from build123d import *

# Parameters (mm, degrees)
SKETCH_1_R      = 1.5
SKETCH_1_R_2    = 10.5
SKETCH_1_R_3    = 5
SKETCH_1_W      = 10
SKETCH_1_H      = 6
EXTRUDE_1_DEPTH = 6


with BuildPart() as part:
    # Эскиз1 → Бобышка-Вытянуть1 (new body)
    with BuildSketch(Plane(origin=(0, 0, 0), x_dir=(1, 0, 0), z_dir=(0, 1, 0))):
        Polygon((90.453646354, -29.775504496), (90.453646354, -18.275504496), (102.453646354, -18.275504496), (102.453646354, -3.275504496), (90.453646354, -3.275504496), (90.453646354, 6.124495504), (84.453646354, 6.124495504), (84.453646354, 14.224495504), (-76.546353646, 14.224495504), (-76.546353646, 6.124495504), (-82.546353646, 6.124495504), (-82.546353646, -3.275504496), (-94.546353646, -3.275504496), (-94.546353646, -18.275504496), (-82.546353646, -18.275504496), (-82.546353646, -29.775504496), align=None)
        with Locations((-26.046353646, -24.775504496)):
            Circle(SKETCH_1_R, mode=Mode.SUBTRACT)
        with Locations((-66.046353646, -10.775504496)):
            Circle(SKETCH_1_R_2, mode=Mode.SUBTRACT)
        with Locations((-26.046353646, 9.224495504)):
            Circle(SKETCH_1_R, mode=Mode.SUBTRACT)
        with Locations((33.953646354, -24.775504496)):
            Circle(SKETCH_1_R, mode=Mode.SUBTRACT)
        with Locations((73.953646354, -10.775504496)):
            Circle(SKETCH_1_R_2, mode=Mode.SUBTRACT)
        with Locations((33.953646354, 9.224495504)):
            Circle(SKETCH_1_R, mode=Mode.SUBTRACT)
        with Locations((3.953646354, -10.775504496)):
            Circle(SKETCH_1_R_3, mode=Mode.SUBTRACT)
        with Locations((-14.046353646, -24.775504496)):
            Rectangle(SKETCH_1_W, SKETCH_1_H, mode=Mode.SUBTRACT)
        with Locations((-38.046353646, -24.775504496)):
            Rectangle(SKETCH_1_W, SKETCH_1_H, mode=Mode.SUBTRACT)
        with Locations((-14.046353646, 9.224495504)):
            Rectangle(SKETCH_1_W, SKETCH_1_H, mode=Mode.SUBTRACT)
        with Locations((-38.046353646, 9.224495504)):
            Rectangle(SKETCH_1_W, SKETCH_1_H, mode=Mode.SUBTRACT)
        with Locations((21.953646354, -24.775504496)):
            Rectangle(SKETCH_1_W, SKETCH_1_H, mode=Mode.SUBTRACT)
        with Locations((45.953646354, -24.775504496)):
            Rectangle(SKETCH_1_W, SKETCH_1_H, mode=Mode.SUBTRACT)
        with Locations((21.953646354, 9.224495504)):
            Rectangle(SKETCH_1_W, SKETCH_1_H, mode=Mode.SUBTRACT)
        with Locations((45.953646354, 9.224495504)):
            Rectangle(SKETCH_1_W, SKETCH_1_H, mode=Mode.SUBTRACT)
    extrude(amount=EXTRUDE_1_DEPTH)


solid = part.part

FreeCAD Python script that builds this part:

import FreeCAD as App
import Part
import Sketcher

doc = App.newDocument("Part")
params = doc.addObject("Spreadsheet::Sheet", "Params")
for row, (alias, value) in enumerate([
    ("sketch1_diameter", "3 mm"),
    ("sketch1_diameter2", "21 mm"),
    ("sketch1_diameter3", "10 mm"),
    ("sketch1_width", "12 mm"),
    ("sketch1_width2", "6 mm"),
    ("pad1_length", "6 mm"),
], start=1):
    params.set(f"A{row}", alias)
    params.set(f"B{row}", "=" + value)
    params.setAlias(f"B{row}", alias)

body = doc.addObject("PartDesign::Body", "Body")

# Sketch on XZ plane
sketch1 = doc.addObject("Sketcher::SketchObject", "Sketch")
body.addObject(sketch1)
sketch1.AttachmentSupport = (doc.XZ_Plane, [""])
sketch1.MapMode = "FlatFace"
sketch1.addGeometry([
    Part.LineSegment(App.Vector(90.5, 29.8, 0), App.Vector(90.5, 18.3, 0)),  # 0
    Part.LineSegment(App.Vector(90.5, 18.3, 0), App.Vector(102.5, 18.3, 0)),  # 1
    Part.LineSegment(App.Vector(102.5, 18.3, 0), App.Vector(102.5, 3.3, 0)),  # 2
    Part.LineSegment(App.Vector(102.5, 3.3, 0), App.Vector(90.5, 3.3, 0)),  # 3
    Part.LineSegment(App.Vector(90.5, 3.3, 0), App.Vector(90.5, -6.1, 0)),  # 4
    Part.LineSegment(App.Vector(90.5, -6.1, 0), App.Vector(84.5, -6.1, 0)),  # 5
    Part.LineSegment(App.Vector(84.5, -6.1, 0), App.Vector(84.5, -14.2, 0)),  # 6
    Part.LineSegment(App.Vector(84.5, -14.2, 0), App.Vector(-76.5, -14.2, 0)),  # 7
    Part.LineSegment(App.Vector(-76.5, -14.2, 0), App.Vector(-76.5, -6.1, 0)),  # 8
    Part.LineSegment(App.Vector(-76.5, -6.1, 0), App.Vector(-82.5, -6.1, 0)),  # 9
    Part.LineSegment(App.Vector(-82.5, -6.1, 0), App.Vector(-82.5, 3.3, 0)),  # 10
    Part.LineSegment(App.Vector(-82.5, 3.3, 0), App.Vector(-94.5, 3.3, 0)),  # 11
    Part.LineSegment(App.Vector(-94.5, 3.3, 0), App.Vector(-94.5, 18.3, 0)),  # 12
    Part.LineSegment(App.Vector(-94.5, 18.3, 0), App.Vector(-82.5, 18.3, 0)),  # 13
    Part.LineSegment(App.Vector(-82.5, 18.3, 0), App.Vector(-82.5, 29.8, 0)),  # 14
    Part.LineSegment(App.Vector(-82.5, 29.8, 0), App.Vector(90.5, 29.8, 0)),  # 15
    Part.LineSegment(App.Vector(-33, 27.8, 0), App.Vector(-43, 27.8, 0)),  # 16
    Part.LineSegment(App.Vector(-43, 27.8, 0), App.Vector(-43, 21.8, 0)),  # 17
    Part.LineSegment(App.Vector(-43, 21.8, 0), App.Vector(-33, 21.8, 0)),  # 18
    Part.LineSegment(App.Vector(-33, 21.8, 0), App.Vector(-33, 27.8, 0)),  # 19
    Part.Circle(App.Vector(-26, 24.8, 0), App.Vector(0, 0, 1), 1.5),  # 20
    Part.LineSegment(App.Vector(-9, 27.8, 0), App.Vector(-19, 27.8, 0)),  # 21
    Part.LineSegment(App.Vector(-19, 27.8, 0), App.Vector(-19, 21.8, 0)),  # 22
    Part.LineSegment(App.Vector(-19, 21.8, 0), App.Vector(-9, 21.8, 0)),  # 23
    Part.LineSegment(App.Vector(-9, 21.8, 0), App.Vector(-9, 27.8, 0)),  # 24
    Part.Circle(App.Vector(-66, 10.8, 0), App.Vector(0, 0, 1), 10.5),  # 25
    Part.Circle(App.Vector(4, 10.8, 0), App.Vector(0, 0, 1), 5),  # 26
    Part.LineSegment(App.Vector(27, 27.8, 0), App.Vector(17, 27.8, 0)),  # 27
    Part.LineSegment(App.Vector(17, 27.8, 0), App.Vector(17, 21.8, 0)),  # 28
    Part.LineSegment(App.Vector(17, 21.8, 0), App.Vector(27, 21.8, 0)),  # 29
    Part.LineSegment(App.Vector(27, 21.8, 0), App.Vector(27, 27.8, 0)),  # 30
    Part.Circle(App.Vector(34, 24.8, 0), App.Vector(0, 0, 1), 1.5),  # 31
    Part.LineSegment(App.Vector(51, 27.8, 0), App.Vector(41, 27.8, 0)),  # 32
    Part.LineSegment(App.Vector(41, 27.8, 0), App.Vector(41, 21.8, 0)),  # 33
    Part.LineSegment(App.Vector(41, 21.8, 0), App.Vector(51, 21.8, 0)),  # 34
    Part.LineSegment(App.Vector(51, 21.8, 0), App.Vector(51, 27.8, 0)),  # 35
    Part.Circle(App.Vector(74, 10.8, 0), App.Vector(0, 0, 1), 10.5),  # 36
    Part.LineSegment(App.Vector(-33, -6.2, 0), App.Vector(-43, -6.2, 0)),  # 37
    Part.LineSegment(App.Vector(-43, -6.2, 0), App.Vector(-43, -12.2, 0)),  # 38
    Part.LineSegment(App.Vector(-43, -12.2, 0), App.Vector(-33, -12.2, 0)),  # 39
    Part.LineSegment(App.Vector(-33, -12.2, 0), App.Vector(-33, -6.2, 0)),  # 40
    Part.Circle(App.Vector(-26, -9.2, 0), App.Vector(0, 0, 1), 1.5),  # 41
    Part.LineSegment(App.Vector(-9, -6.2, 0), App.Vector(-19, -6.2, 0)),  # 42
    Part.LineSegment(App.Vector(-19, -6.2, 0), App.Vector(-19, -12.2, 0)),  # 43
    Part.LineSegment(App.Vector(-19, -12.2, 0), App.Vector(-9, -12.2, 0)),  # 44
    Part.LineSegment(App.Vector(-9, -12.2, 0), App.Vector(-9, -6.2, 0)),  # 45
    Part.LineSegment(App.Vector(27, -6.2, 0), App.Vector(17, -6.2, 0)),  # 46
    Part.LineSegment(App.Vector(17, -6.2, 0), App.Vector(17, -12.2, 0)),  # 47
    Part.LineSegment(App.Vector(17, -12.2, 0), App.Vector(27, -12.2, 0)),  # 48
    Part.LineSegment(App.Vector(27, -12.2, 0), App.Vector(27, -6.2, 0)),  # 49
    Part.Circle(App.Vector(34, -9.2, 0), App.Vector(0, 0, 1), 1.5),  # 50
    Part.LineSegment(App.Vector(51, -6.2, 0), App.Vector(41, -6.2, 0)),  # 51
    Part.LineSegment(App.Vector(41, -6.2, 0), App.Vector(41, -12.2, 0)),  # 52
    Part.LineSegment(App.Vector(41, -12.2, 0), App.Vector(51, -12.2, 0)),  # 53
    Part.LineSegment(App.Vector(51, -12.2, 0), App.Vector(51, -6.2, 0)),  # 54
], False)
sketch1.addConstraint([
    Sketcher.Constraint("Coincident", 0, 2, 1, 1),
    Sketcher.Constraint("Coincident", 1, 2, 2, 1),
    Sketcher.Constraint("Coincident", 2, 2, 3, 1),
    Sketcher.Constraint("Coincident", 3, 2, 4, 1),
    Sketcher.Constraint("Coincident", 4, 2, 5, 1),
    Sketcher.Constraint("Coincident", 5, 2, 6, 1),
    Sketcher.Constraint("Coincident", 6, 2, 7, 1),
    Sketcher.Constraint("Coincident", 7, 2, 8, 1),
    Sketcher.Constraint("Coincident", 8, 2, 9, 1),
    Sketcher.Constraint("Coincident", 9, 2, 10, 1),
    Sketcher.Constraint("Coincident", 10, 2, 11, 1),
    Sketcher.Constraint("Coincident", 11, 2, 12, 1),
    Sketcher.Constraint("Coincident", 12, 2, 13, 1),
    Sketcher.Constraint("Coincident", 13, 2, 14, 1),
    Sketcher.Constraint("Coincident", 14, 2, 15, 1),
    Sketcher.Constraint("Coincident", 15, 2, 0, 1),
    Sketcher.Constraint("Coincident", 16, 2, 17, 1),
    Sketcher.Constraint("Coincident", 17, 2, 18, 1),
    Sketcher.Constraint("Coincident", 18, 2, 19, 1),
    Sketcher.Constraint("Coincident", 19, 2, 16, 1),
    Sketcher.Constraint("Coincident", 21, 2, 22, 1),
    Sketcher.Constraint("Coincident", 22, 2, 23, 1),
    Sketcher.Constraint("Coincident", 23, 2, 24, 1),
    Sketcher.Constraint("Coincident", 24, 2, 21, 1),
    Sketcher.Constraint("Coincident", 27, 2, 28, 1),
    Sketcher.Constraint("Coincident", 28, 2, 29, 1),
    Sketcher.Constraint("Coincident", 29, 2, 30, 1),
    Sketcher.Constraint("Coincident", 30, 2, 27, 1),
    Sketcher.Constraint("Coincident", 32, 2, 33, 1),
    Sketcher.Constraint("Coincident", 33, 2, 34, 1),
    Sketcher.Constraint("Coincident", 34, 2, 35, 1),
    Sketcher.Constraint("Coincident", 35, 2, 32, 1),
    Sketcher.Constraint("Coincident", 37, 2, 38, 1),
    Sketcher.Constraint("Coincident", 38, 2, 39, 1),
    Sketcher.Constraint("Coincident", 39, 2, 40, 1),
    Sketcher.Constraint("Coincident", 40, 2, 37, 1),
    Sketcher.Constraint("Coincident", 42, 2, 43, 1),
    Sketcher.Constraint("Coincident", 43, 2, 44, 1),
    Sketcher.Constraint("Coincident", 44, 2, 45, 1),
    Sketcher.Constraint("Coincident", 45, 2, 42, 1),
    Sketcher.Constraint("Coincident", 46, 2, 47, 1),
    Sketcher.Constraint("Coincident", 47, 2, 48, 1),
    Sketcher.Constraint("Coincident", 48, 2, 49, 1),
    Sketcher.Constraint("Coincident", 49, 2, 46, 1),
    Sketcher.Constraint("Coincident", 51, 2, 52, 1),
    Sketcher.Constraint("Coincident", 52, 2, 53, 1),
    Sketcher.Constraint("Coincident", 53, 2, 54, 1),
    Sketcher.Constraint("Coincident", 54, 2, 51, 1),
    Sketcher.Constraint("Vertical", 0),
    Sketcher.Constraint("Horizontal", 1),
    Sketcher.Constraint("Vertical", 2),
    Sketcher.Constraint("Horizontal", 3),
    Sketcher.Constraint("Vertical", 4),
    Sketcher.Constraint("Horizontal", 5),
    Sketcher.Constraint("Vertical", 6),
    Sketcher.Constraint("Horizontal", 7),
    Sketcher.Constraint("Vertical", 8),
    Sketcher.Constraint("Horizontal", 9),
    Sketcher.Constraint("Vertical", 10),
    Sketcher.Constraint("Horizontal", 11),
    Sketcher.Constraint("Vertical", 12),
    Sketcher.Constraint("Horizontal", 13),
    Sketcher.Constraint("Vertical", 14),
    Sketcher.Constraint("Horizontal", 15),
    Sketcher.Constraint("Horizontal", 16),
    Sketcher.Constraint("Vertical", 17),
    Sketcher.Constraint("Horizontal", 18),
    Sketcher.Constraint("Vertical", 19),
    Sketcher.Constraint("Horizontal", 21),
    Sketcher.Constraint("Vertical", 22),
    Sketcher.Constraint("Horizontal", 23),
    Sketcher.Constraint("Vertical", 24),
    Sketcher.Constraint("Horizontal", 27),
    Sketcher.Constraint("Vertical", 28),
    Sketcher.Constraint("Horizontal", 29),
    Sketcher.Constraint("Vertical", 30),
    Sketcher.Constraint("Horizontal", 32),
    Sketcher.Constraint("Vertical", 33),
    Sketcher.Constraint("Horizontal", 34),
    Sketcher.Constraint("Vertical", 35),
    Sketcher.Constraint("Horizontal", 37),
    Sketcher.Constraint("Vertical", 38),
    Sketcher.Constraint("Horizontal", 39),
    Sketcher.Constraint("Vertical", 40),
    Sketcher.Constraint("Horizontal", 42),
    Sketcher.Constraint("Vertical", 43),
    Sketcher.Constraint("Horizontal", 44),
    Sketcher.Constraint("Vertical", 45),
    Sketcher.Constraint("Horizontal", 46),
    Sketcher.Constraint("Vertical", 47),
    Sketcher.Constraint("Horizontal", 48),
    Sketcher.Constraint("Vertical", 49),
    Sketcher.Constraint("Horizontal", 51),
    Sketcher.Constraint("Vertical", 52),
    Sketcher.Constraint("Horizontal", 53),
    Sketcher.Constraint("Vertical", 54),
    Sketcher.Constraint("Equal", 20, 31),
    Sketcher.Constraint("Equal", 25, 36),
    Sketcher.Constraint("Equal", 31, 41),
    Sketcher.Constraint("Equal", 41, 50),
    Sketcher.Constraint("Horizontal", 25, 3, 26, 3),
    Sketcher.Constraint("Horizontal", 20, 3, 31, 3),
    Sketcher.Constraint("Horizontal", 26, 3, 36, 3),
    Sketcher.Constraint("Horizontal", 41, 3, 50, 3),
    Sketcher.Constraint("Horizontal", 5, 2, 8, 2),
    Sketcher.Constraint("Horizontal", 3, 2, 10, 2),
    Sketcher.Constraint("Horizontal", 1, 2, 12, 2),
    Sketcher.Constraint("Horizontal", 19, 2, 21, 2),
    Sketcher.Constraint("Horizontal", 18, 2, 22, 2),
    Sketcher.Constraint("Horizontal", 24, 2, 27, 2),
    Sketcher.Constraint("Horizontal", 23, 2, 28, 2),
    Sketcher.Constraint("Horizontal", 30, 2, 32, 2),
    Sketcher.Constraint("Horizontal", 29, 2, 33, 2),
    Sketcher.Constraint("Horizontal", 40, 2, 42, 2),
    Sketcher.Constraint("Horizontal", 39, 2, 43, 2),
    Sketcher.Constraint("Horizontal", 45, 2, 46, 2),
    Sketcher.Constraint("Horizontal", 44, 2, 47, 2),
    Sketcher.Constraint("Horizontal", 49, 2, 51, 2),
    Sketcher.Constraint("Horizontal", 48, 2, 52, 2),
    Sketcher.Constraint("Vertical", 20, 3, 41, 3),
    Sketcher.Constraint("Vertical", 31, 3, 50, 3),
    Sketcher.Constraint("Vertical", 0, 2, 3, 2),
    Sketcher.Constraint("Vertical", 10, 2, 13, 2),
    Sketcher.Constraint("Vertical", 17, 2, 37, 2),
    Sketcher.Constraint("Vertical", 19, 2, 39, 2),
    Sketcher.Constraint("Vertical", 22, 2, 42, 2),
    Sketcher.Constraint("Vertical", 24, 2, 44, 2),
    Sketcher.Constraint("Vertical", 28, 2, 46, 2),
    Sketcher.Constraint("Vertical", 30, 2, 48, 2),
    Sketcher.Constraint("Vertical", 33, 2, 51, 2),
    Sketcher.Constraint("Vertical", 35, 2, 53, 2),
    Sketcher.Constraint("Equal", 5, 9),
    Sketcher.Constraint("Equal", 3, 11),
    Sketcher.Constraint("Equal", 18, 21),
    Sketcher.Constraint("Equal", 23, 27),
    Sketcher.Constraint("Equal", 29, 32),
    Sketcher.Constraint("Equal", 9, 17),
    Sketcher.Constraint("Equal", 35, 38),
    Sketcher.Constraint("Diameter", 20, 3.0),
    Sketcher.Constraint("Diameter", 25, 21.0),
    Sketcher.Constraint("Diameter", 26, 10.0),
    Sketcher.Constraint("DistanceX", 1, 1, 1, 2, 12.0),
    Sketcher.Constraint("DistanceX", 5, 2, 5, 1, 6.0),
    Sketcher.Constraint("DistanceX", 7, 2, 7, 1, 161.0),
    Sketcher.Constraint("DistanceX", 16, 2, 16, 1, 10.0),
    Sketcher.Constraint("DistanceY", 2, 2, 2, 1, 15.0),
    Sketcher.Constraint("DistanceY", 0, 2, 0, 1, 11.5),
    Sketcher.Constraint("DistanceY", 4, 2, 4, 1, 9.4),
    Sketcher.Constraint("DistanceY", 6, 2, 6, 1, 8.1),
    Sketcher.Constraint("DistanceX", 25, 3, 20, 3, 40.0),
    Sketcher.Constraint("DistanceY", 25, 3, 20, 3, 14.0),
    Sketcher.Constraint("DistanceX", 20, 3, 26, 3, 30.0),
    Sketcher.Constraint("DistanceX", 26, 3, 31, 3, 30.0),
    Sketcher.Constraint("DistanceX", 31, 3, 36, 3, 40.0),
    Sketcher.Constraint("DistanceY", 41, 3, 20, 3, 34.0),
    Sketcher.Constraint("DistanceY", 6, 2, 36, 3, 25.0),
    Sketcher.Constraint("DistanceX", 16, 2, 20, 3, 17.0),
    Sketcher.Constraint("DistanceY", 20, 3, 16, 2, 3.0),
    Sketcher.Constraint("DistanceX", 20, 3, 21, 2, 7.0),
    Sketcher.Constraint("DistanceX", 27, 2, 31, 3, 17.0),
    Sketcher.Constraint("DistanceX", 31, 3, 32, 2, 7.0),
    Sketcher.Constraint("DistanceY", 41, 3, 37, 2, 3.0),
    Sketcher.Constraint("DistanceX", 36, 3, 0, 2, 16.5),
    Sketcher.Constraint("DistanceX", 20, 3, -1, 1, 26.046354),
    Sketcher.Constraint("DistanceY", -1, 1, 20, 3, 24.775504),
])
sketch1.setExpression("Constraints[138]", "Params.sketch1_diameter")
sketch1.setExpression("Constraints[139]", "Params.sketch1_diameter2")
sketch1.setExpression("Constraints[140]", "Params.sketch1_diameter3")
sketch1.setExpression("Constraints[141]", "Params.sketch1_width")
sketch1.setExpression("Constraints[142]", "Params.sketch1_width2")
pad1 = doc.addObject("PartDesign::Pad", "Pad")
body.addObject(pad1)
pad1.Profile = sketch1
pad1.setExpression("Length", "Params.pad1_length")
pad1.Reversed = True

doc.recompute()
